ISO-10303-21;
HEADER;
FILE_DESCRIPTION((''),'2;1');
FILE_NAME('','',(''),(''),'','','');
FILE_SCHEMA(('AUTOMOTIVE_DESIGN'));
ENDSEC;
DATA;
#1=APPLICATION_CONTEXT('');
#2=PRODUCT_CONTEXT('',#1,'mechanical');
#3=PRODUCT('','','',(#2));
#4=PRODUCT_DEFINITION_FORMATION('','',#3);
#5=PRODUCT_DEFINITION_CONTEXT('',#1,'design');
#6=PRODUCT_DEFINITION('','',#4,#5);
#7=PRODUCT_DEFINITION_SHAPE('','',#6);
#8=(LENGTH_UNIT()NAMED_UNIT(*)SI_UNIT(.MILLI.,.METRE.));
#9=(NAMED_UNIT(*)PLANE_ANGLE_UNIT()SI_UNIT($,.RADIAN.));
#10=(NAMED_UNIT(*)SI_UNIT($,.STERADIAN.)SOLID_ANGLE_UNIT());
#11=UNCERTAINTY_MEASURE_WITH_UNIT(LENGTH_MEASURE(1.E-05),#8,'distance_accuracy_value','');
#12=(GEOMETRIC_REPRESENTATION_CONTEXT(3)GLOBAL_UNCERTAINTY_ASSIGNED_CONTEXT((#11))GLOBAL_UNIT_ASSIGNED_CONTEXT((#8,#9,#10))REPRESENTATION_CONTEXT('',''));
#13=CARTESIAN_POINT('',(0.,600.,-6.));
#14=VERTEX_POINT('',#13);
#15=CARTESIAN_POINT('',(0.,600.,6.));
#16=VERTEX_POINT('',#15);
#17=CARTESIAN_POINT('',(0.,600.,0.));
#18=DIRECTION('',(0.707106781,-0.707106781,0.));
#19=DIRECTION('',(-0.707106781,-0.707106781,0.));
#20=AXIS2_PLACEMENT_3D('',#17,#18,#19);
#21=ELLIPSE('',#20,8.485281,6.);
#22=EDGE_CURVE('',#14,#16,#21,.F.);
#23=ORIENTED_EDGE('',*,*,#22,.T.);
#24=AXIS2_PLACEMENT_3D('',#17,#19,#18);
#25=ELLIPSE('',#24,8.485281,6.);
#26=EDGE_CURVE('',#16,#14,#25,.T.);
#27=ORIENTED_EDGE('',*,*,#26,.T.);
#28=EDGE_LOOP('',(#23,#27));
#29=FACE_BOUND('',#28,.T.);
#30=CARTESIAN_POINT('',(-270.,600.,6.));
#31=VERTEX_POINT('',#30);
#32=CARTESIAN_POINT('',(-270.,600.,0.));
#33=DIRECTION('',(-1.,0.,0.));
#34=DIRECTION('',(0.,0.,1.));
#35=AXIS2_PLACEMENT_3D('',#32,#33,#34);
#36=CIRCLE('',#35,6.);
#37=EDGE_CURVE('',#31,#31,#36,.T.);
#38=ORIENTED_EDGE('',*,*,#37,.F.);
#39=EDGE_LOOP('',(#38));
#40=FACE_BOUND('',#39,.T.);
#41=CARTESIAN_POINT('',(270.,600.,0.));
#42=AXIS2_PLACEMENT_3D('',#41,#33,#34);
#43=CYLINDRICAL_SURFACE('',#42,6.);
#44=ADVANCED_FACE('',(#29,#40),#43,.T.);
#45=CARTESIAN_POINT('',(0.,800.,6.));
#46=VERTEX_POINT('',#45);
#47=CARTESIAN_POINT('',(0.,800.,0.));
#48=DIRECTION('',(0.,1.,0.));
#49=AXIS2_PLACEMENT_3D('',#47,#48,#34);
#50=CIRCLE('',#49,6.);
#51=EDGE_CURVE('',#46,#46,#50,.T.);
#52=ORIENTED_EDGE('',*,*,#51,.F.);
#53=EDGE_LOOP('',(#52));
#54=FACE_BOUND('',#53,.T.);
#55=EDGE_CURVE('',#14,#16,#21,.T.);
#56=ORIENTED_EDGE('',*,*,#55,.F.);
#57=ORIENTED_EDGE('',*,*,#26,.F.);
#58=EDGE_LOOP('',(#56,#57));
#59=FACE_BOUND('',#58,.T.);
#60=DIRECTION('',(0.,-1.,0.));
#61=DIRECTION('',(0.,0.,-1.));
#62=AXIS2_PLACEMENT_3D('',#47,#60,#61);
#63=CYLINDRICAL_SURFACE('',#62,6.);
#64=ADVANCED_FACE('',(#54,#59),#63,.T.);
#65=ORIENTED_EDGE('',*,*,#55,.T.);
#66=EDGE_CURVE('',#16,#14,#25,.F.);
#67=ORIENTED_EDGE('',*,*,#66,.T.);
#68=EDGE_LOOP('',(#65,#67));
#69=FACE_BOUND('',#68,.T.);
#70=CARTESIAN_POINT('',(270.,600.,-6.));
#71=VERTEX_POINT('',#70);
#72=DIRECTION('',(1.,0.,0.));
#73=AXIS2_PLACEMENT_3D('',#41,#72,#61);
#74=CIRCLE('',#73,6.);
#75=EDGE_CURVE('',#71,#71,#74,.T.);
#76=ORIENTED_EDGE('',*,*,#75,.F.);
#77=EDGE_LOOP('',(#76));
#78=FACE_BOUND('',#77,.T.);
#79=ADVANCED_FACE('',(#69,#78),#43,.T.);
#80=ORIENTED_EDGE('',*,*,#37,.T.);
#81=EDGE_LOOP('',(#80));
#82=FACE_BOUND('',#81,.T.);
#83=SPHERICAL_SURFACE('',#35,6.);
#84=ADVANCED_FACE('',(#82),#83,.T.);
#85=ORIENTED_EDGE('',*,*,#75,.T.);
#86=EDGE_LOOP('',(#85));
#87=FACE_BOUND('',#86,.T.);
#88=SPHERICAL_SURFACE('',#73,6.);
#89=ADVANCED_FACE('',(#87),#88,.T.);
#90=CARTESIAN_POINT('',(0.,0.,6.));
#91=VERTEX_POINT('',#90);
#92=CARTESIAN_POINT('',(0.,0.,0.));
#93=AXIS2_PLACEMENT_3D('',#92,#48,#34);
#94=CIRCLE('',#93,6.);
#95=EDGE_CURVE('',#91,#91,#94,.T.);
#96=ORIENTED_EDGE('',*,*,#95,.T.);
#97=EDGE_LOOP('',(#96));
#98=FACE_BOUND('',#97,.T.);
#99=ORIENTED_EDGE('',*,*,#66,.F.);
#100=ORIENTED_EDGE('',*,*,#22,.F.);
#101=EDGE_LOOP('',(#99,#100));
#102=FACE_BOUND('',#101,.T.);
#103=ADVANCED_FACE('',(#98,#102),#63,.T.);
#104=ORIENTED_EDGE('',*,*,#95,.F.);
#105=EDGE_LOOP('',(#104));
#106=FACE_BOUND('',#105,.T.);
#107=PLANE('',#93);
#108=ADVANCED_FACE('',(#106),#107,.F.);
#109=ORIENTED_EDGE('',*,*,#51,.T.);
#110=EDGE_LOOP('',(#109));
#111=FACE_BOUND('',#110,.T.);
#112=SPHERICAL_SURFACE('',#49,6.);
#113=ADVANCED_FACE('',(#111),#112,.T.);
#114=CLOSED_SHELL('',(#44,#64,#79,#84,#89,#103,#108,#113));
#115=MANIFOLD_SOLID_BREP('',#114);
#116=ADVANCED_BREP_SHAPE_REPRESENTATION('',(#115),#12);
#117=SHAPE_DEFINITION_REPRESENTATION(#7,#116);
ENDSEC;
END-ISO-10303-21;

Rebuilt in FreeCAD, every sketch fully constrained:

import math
import FreeCAD as App
import Part
import Sketcher
from FreeCAD import Vector

doc = App.newDocument("Part")
body = doc.addObject("PartDesign::Body", "Body")

# Sketch on XZ plane
sketch1 = doc.addObject("Sketcher::SketchObject", "Sketch")
body.addObject(sketch1)
sketch1.AttachmentSupport = (doc.XZ_Plane, [""])
sketch1.MapMode = "FlatFace"
sketch1.addGeometry(Part.Circle(Vector(0, 0, 0), Vector(0, 0, 1), 6), False)
sketch1.addConstraint([
    Sketcher.Constraint("Coincident", 0, 3, -1, 1),
    Sketcher.Constraint("Diameter", 0, 12.0),
])
pad1 = doc.addObject("PartDesign::Pad", "Pad")
body.addObject(pad1)
pad1.Profile = sketch1
pad1.Length = 800
pad1.Reversed = True

# Sketch on YZ plane
sketch2 = doc.addObject("Sketcher::SketchObject", "Sketch001")
body.addObject(sketch2)
sketch2.AttachmentSupport = (doc.YZ_Plane, [""])
sketch2.MapMode = "FlatFace"
sketch2.addGeometry(Part.Circle(Vector(600, 0, 0), Vector(0, 0, 1), 6), False)
sketch2.addConstraint([
    Sketcher.Constraint("PointOnObject", 0, 3, -1),
    Sketcher.Constraint("Diameter", 0, 12.0),
    Sketcher.Constraint("DistanceX", -1, 1, 0, 3, 600.0),
])
pad2 = doc.addObject("PartDesign::Pad", "Pad001")
body.addObject(pad2)
pad2.Profile = sketch2
pad2.Length = 540
pad2.Midplane = True

# Sketch on YZ plane
sketch3 = doc.addObject("Sketcher::SketchObject", "Sketch002")
body.addObject(sketch3)
sketch3.AttachmentSupport = (doc.YZ_Plane, [""])
sketch3.MapMode = "FlatFace"
sketch3.AttachmentOffset = App.Placement(Vector(0, 0, 270), App.Rotation())
sketch3.addGeometry([
    Part.LineSegment(Vector(606, 0, 0), Vector(594, 0, 0)),
    Part.ArcOfCircle(Part.Circle(Vector(600, 0, 0), Vector(0, 0, 1), 6), math.radians(180), math.radians(360)),
], False)
sketch3.addConstraint([
    Sketcher.Constraint("Coincident", 0, 1, 1, 2),
    Sketcher.Constraint("Coincident", 1, 1, 0, 2),
    Sketcher.Constraint("Horizontal", 0),
    Sketcher.Constraint("PointOnObject", 1, 3, -1),
    Sketcher.Constraint("PointOnObject", 0, 1, -1),
    Sketcher.Constraint("Radius", 1, 6.0),
    Sketcher.Constraint("DistanceX", -1, 1, 1, 3, 600.0),
])
revolution = doc.addObject("PartDesign::Revolution", "Revolution")
body.addObject(revolution)
revolution.Profile = sketch3
revolution.ReferenceAxis = (sketch3, ["H_Axis"])
revolution.Angle = 180
revolution.Reversed = True

# Sketch on XZ plane
sketch4 = doc.addObject("Sketcher::SketchObject", "Sketch003")
body.addObject(sketch4)
sketch4.AttachmentSupport = (doc.XZ_Plane, [""])
sketch4.MapMode = "FlatFace"
sketch4.AttachmentOffset = App.Placement(Vector(0, 0, -800), App.Rotation())
sketch4.addGeometry([
    Part.LineSegment(Vector(0, -6, 0), Vector(0, 6, 0)),
    Part.ArcOfCircle(Part.Circle(Vector(0, 0, 0), Vector(0, 0, 1), 6), math.radians(-90), math.radians(90)),
], False)
sketch4.addConstraint([
    Sketcher.Constraint("Coincident", 0, 1, 1, 1),
    Sketcher.Constraint("Coincident", 1, 2, 0, 2),
    Sketcher.Constraint("Vertical", 0),
    Sketcher.Constraint("Coincident", 1, 3, -1, 1),
    Sketcher.Constraint("PointOnObject", 0, 1, -2),
    Sketcher.Constraint("Radius", 1, 6.0),
])
revolution2 = doc.addObject("PartDesign::Revolution", "Revolution001")
body.addObject(revolution2)
revolution2.Profile = sketch4
revolution2.ReferenceAxis = (sketch4, ["V_Axis"])
revolution2.Angle = 180
doc.recompute()

mirrored = doc.addObject("PartDesign::Mirrored", "Mirrored")
body.addObject(mirrored)
mirrored.Originals = [revolution]
mirrored.MirrorPlane = (doc.YZ_Plane, [""])
body.Tip = mirrored

doc.recompute()
